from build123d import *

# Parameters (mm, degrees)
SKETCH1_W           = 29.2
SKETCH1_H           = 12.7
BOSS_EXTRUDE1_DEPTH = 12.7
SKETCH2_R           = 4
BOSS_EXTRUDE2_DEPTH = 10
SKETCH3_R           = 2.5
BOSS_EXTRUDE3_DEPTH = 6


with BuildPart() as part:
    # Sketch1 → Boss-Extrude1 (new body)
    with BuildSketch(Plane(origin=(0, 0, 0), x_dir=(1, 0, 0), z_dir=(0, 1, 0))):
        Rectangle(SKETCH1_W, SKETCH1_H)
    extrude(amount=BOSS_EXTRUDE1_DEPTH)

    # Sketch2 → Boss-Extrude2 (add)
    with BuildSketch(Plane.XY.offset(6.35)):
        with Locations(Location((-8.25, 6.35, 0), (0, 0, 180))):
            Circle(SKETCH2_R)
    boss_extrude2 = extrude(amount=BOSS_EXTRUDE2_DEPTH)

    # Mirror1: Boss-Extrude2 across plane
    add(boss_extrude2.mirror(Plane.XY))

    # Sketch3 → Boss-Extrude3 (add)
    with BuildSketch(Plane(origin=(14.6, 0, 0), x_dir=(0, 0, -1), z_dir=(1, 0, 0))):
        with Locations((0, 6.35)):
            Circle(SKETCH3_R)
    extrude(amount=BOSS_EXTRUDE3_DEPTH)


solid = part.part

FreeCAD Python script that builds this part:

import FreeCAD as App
import Part
import Sketcher


def add_polygon(sketch, points):
    """Adds a closed chain of lines whose ends are joined by coincident constraints."""
    first, n = sketch.GeometryCount, len(points)
    for a, b in zip(points, points[1:] + points[:1]):
        sketch.addGeometry(Part.LineSegment(App.Vector(*a, 0), App.Vector(*b, 0)), False)
    for i in range(n):
        sketch.addConstraint(Sketcher.Constraint("Coincident", first + i, 2, first + (i + 1) % n, 1))

doc = App.newDocument("Part")
body = doc.addObject("PartDesign::Body", "Body")

# Sketch on XZ plane
sketch1 = body.newObject("Sketcher::SketchObject", "Sketch")
sketch1.AttachmentSupport = (doc.getObject("XZ_Plane"), [""])
sketch1.MapMode = "FlatFace"
add_polygon(sketch1, [(-15, -6), (-15, 6), (15, 6), (15, -6)])  # lines 0-3
sketch1.addConstraint(Sketcher.Constraint("Vertical", 0))
sketch1.addConstraint(Sketcher.Constraint("Horizontal", 1))
sketch1.addConstraint(Sketcher.Constraint("Vertical", 2))
sketch1.addConstraint(Sketcher.Constraint("Horizontal", 3))
sketch1.addConstraint(Sketcher.Constraint("Symmetric", 0, 2, 2, 2, -1, 1))
sketch1.addConstraint(Sketcher.Constraint("DistanceX", 1, 1, 1, 2, 29.2))
sketch1.addConstraint(Sketcher.Constraint("DistanceY", 0, 1, 0, 2, 12.7))
pad1 = body.newObject("PartDesign::Pad", "Pad")
pad1.Profile = sketch1
pad1.Length = 12.7
pad1.Reversed = True

# Sketch on XY plane
sketch2 = body.newObject("Sketcher::SketchObject", "Sketch001")
sketch2.AttachmentSupport = (doc.getObject("XY_Plane"), [""])
sketch2.MapMode = "FlatFace"
sketch2.AttachmentOffset = App.Placement(App.Vector(0, 0, 6.35), App.Rotation())
sketch2.addGeometry(Part.Circle(App.Vector(-8.2, 6.3, 0), App.Vector(0, 0, 1), 4), False)
sketch2.addConstraint(Sketcher.Constraint("Diameter", 0, 8.0))
sketch2.addConstraint(Sketcher.Constraint("DistanceX", 0, 3, -1, 1, 8.25))
sketch2.addConstraint(Sketcher.Constraint("DistanceY", -1, 1, 0, 3, 6.35))
pad2 = body.newObject("PartDesign::Pad", "Pad001")
pad2.Profile = sketch2
pad2.Length = 10
doc.recompute()

mirrored = body.newObject("PartDesign::Mirrored", "Mirrored")
mirrored.Originals = [pad2]
mirrored.MirrorPlane = (doc.getObject("XY_Plane"), [""])
body.Tip = mirrored

# Sketch on YZ plane
sketch3 = body.newObject("Sketcher::SketchObject", "Sketch002")
sketch3.AttachmentSupport = (doc.getObject("YZ_Plane"), [""])
sketch3.MapMode = "FlatFace"
sketch3.AttachmentOffset = App.Placement(App.Vector(0, 0, 14.6), App.Rotation())
sketch3.addGeometry(Part.Circle(App.Vector(6.3, 0, 0), App.Vector(0, 0, 1), 2.5), False)
sketch3.addConstraint(Sketcher.Constraint("PointOnObject", 0, 3, -1))
sketch3.addConstraint(Sketcher.Constraint("Diameter", 0, 5.0))
sketch3.addConstraint(Sketcher.Constraint("DistanceX", -1, 1, 0, 3, 6.35))
pad3 = body.newObject("PartDesign::Pad", "Pad002")
pad3.Profile = sketch3
pad3.Length = 6

doc.recompute()
